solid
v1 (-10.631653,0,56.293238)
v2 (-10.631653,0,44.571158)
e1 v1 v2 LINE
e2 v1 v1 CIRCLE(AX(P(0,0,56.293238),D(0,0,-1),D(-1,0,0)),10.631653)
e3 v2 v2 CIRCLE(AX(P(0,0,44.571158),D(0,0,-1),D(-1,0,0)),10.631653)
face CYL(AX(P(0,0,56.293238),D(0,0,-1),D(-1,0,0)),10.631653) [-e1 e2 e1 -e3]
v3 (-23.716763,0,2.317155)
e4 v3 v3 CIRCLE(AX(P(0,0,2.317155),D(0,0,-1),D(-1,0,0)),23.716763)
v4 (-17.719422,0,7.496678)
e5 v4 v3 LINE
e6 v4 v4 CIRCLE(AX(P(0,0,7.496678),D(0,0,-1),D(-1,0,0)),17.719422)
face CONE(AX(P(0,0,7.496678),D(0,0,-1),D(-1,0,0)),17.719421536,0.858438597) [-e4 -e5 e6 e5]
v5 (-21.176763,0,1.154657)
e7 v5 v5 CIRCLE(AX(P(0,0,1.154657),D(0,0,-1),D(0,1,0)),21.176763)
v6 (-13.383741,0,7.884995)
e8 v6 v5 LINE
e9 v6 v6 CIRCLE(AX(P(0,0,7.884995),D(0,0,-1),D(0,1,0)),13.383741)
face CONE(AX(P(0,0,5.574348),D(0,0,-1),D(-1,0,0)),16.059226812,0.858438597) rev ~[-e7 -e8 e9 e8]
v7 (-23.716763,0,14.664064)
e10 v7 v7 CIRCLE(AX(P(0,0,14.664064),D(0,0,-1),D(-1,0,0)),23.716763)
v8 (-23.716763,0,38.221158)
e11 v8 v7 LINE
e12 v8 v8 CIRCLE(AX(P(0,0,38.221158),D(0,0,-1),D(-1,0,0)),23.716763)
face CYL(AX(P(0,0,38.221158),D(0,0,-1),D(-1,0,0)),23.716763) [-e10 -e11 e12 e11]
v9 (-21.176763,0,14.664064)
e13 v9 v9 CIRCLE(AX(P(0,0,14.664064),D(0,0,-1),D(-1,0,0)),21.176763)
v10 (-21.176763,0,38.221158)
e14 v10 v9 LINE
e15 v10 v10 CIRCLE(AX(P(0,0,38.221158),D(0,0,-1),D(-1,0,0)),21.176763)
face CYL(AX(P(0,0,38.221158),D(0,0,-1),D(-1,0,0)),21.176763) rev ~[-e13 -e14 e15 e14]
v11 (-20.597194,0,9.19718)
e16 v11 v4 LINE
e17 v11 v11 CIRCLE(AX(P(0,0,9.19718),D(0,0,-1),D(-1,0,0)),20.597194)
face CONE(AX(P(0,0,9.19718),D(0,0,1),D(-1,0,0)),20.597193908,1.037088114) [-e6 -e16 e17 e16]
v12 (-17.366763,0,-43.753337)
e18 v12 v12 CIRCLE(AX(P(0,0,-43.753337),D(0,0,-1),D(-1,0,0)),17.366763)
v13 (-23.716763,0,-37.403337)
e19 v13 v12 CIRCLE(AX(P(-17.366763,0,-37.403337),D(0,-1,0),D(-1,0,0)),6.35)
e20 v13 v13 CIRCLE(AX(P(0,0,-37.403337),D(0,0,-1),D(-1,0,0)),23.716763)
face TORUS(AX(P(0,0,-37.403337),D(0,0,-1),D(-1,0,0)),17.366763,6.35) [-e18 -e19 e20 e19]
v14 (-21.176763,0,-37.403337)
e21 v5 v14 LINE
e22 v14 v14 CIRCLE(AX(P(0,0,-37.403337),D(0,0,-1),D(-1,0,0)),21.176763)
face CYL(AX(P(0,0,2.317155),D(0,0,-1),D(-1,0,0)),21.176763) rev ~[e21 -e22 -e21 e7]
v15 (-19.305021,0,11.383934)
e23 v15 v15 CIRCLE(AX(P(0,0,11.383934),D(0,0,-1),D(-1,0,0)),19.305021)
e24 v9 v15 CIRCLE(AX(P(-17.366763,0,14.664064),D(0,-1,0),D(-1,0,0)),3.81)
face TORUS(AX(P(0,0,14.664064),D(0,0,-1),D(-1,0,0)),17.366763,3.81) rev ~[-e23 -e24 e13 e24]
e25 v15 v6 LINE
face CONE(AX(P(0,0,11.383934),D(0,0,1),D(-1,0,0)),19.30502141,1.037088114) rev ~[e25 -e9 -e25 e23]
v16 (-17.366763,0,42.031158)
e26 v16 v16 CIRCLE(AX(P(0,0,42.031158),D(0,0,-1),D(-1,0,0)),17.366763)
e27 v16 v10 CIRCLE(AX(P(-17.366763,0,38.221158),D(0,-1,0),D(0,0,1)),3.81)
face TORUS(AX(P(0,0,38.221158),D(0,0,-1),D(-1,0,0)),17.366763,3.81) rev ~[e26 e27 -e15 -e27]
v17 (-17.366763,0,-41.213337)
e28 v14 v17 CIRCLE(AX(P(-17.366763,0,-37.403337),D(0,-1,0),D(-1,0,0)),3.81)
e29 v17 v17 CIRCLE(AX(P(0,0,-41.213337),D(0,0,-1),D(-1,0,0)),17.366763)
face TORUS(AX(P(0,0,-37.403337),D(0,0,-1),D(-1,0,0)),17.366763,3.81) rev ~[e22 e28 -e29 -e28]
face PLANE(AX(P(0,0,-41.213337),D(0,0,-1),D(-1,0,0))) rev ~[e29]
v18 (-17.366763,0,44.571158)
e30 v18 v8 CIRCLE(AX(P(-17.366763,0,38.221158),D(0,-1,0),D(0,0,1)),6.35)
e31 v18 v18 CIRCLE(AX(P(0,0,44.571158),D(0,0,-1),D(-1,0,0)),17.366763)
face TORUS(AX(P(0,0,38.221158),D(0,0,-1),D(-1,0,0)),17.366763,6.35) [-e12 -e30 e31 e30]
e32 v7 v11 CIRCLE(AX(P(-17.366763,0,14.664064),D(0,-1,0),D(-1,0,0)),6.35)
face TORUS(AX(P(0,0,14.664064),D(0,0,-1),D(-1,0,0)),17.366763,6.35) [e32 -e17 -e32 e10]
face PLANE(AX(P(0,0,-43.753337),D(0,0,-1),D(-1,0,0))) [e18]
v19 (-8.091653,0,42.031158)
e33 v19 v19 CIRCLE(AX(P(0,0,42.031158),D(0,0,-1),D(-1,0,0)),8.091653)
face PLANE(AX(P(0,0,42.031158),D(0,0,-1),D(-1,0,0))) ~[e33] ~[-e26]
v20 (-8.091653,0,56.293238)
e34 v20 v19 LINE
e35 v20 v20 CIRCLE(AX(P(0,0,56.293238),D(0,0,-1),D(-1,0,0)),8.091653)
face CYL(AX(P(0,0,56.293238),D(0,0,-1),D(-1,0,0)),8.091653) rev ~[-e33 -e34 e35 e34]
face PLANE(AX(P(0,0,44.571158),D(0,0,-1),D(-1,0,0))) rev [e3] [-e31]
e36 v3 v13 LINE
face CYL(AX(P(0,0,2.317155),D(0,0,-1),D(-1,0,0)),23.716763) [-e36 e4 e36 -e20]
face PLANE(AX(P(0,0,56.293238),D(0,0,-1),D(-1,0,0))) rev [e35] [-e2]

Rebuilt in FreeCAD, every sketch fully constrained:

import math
import FreeCAD as App
import Part
import Sketcher
Q = App.Units.Quantity


def faces_at(feature, points):
    """Names of the faces that lie closest to the given points."""
    faces = feature.Shape.Faces
    near = lambda p: min(range(len(faces)), key=lambda i: faces[i].distToShape(Part.Vertex(*p))[0])
    return sorted({f"Face{near(p) + 1}" for p in points})

doc = App.newDocument("Part")
body = doc.addObject("PartDesign::Body", "Body")

# Sketch on XZ plane
sketch1 = body.newObject("Sketcher::SketchObject", "Sketch")
sketch1.AttachmentSupport = (doc.getObject("XZ_Plane"), [""])
sketch1.MapMode = "FlatFace"
sketch1.addGeometry(Part.LineSegment(App.Vector(0, -43.8, 0), App.Vector(0, 56.3, 0)), False)
sketch1.addGeometry(Part.LineSegment(App.Vector(0, 56.3, 0), App.Vector(-10.6, 56.3, 0)), False)
sketch1.addGeometry(Part.LineSegment(App.Vector(-10.6, 56.3, 0), App.Vector(-10.6, 44.6, 0)), False)
sketch1.addGeometry(Part.LineSegment(App.Vector(-10.6, 44.6, 0), App.Vector(-17.4, 44.6, 0)), False)
sketch1.addGeometry(Part.ArcOfCircle(Part.Circle(App.Vector(-17.4, 38.2, 0), App.Vector(0, 0, 1), 6.3), math.radians(90), math.radians(180)), False)
sketch1.addGeometry(Part.LineSegment(App.Vector(-23.7, 38.2, 0), App.Vector(-23.7, 14.7, 0)), False)
sketch1.addGeometry(Part.ArcOfCircle(Part.Circle(App.Vector(-17.4, 14.7, 0), App.Vector(0, 0, 1), 6.3), math.radians(180), math.radians(239)), False)
sketch1.addGeometry(Part.LineSegment(App.Vector(-20.6, 9.2, 0), App.Vector(-17.7, 7.5, 0)), False)
sketch1.addGeometry(Part.LineSegment(App.Vector(-17.7, 7.5, 0), App.Vector(-23.7, 2.3, 0)), False)
sketch1.addGeometry(Part.LineSegment(App.Vector(-23.7, 2.3, 0), App.Vector(-23.7, -37.4, 0)), False)
sketch1.addGeometry(Part.ArcOfCircle(Part.Circle(App.Vector(-17.4, -37.4, 0), App.Vector(0, 0, 1), 6.3), math.radians(180), math.radians(270)), False)
sketch1.addGeometry(Part.LineSegment(App.Vector(-17.4, -43.8, 0), App.Vector(0, -43.8, 0)), False)
sketch1.addConstraint(Sketcher.Constraint("Coincident", 0, 2, 1, 1))
sketch1.addConstraint(Sketcher.Constraint("Coincident", 1, 2, 2, 1))
sketch1.addConstraint(Sketcher.Constraint("Coincident", 2, 2, 3, 1))
sketch1.addConstraint(Sketcher.Constraint("Tangent", 3, 2, 4, 1))
sketch1.addConstraint(Sketcher.Constraint("Tangent", 4, 2, 5, 1))
sketch1.addConstraint(Sketcher.Constraint("Tangent", 5, 2, 6, 1))
sketch1.addConstraint(Sketcher.Constraint("Tangent", 6, 2, 7, 1))
sketch1.addConstraint(Sketcher.Constraint("Coincident", 7, 2, 8, 1))
sketch1.addConstraint(Sketcher.Constraint("Coincident", 8, 2, 9, 1))
sketch1.addConstraint(Sketcher.Constraint("Tangent", 9, 2, 10, 1))
sketch1.addConstraint(Sketcher.Constraint("Tangent", 10, 2, 11, 1))
sketch1.addConstraint(Sketcher.Constraint("Coincident", 11, 2, 0, 1))
sketch1.addConstraint(Sketcher.Constraint("Vertical", 0))
sketch1.addConstraint(Sketcher.Constraint("Horizontal", 1))
sketch1.addConstraint(Sketcher.Constraint("Vertical", 2))
sketch1.addConstraint(Sketcher.Constraint("Horizontal", 3))
sketch1.addConstraint(Sketcher.Constraint("Vertical", 5))
sketch1.addConstraint(Sketcher.Constraint("Vertical", 9))
sketch1.addConstraint(Sketcher.Constraint("Horizontal", 11))
sketch1.addConstraint(Sketcher.Constraint("Equal", 4, 6))
sketch1.addConstraint(Sketcher.Constraint("Equal", 6, 10))
sketch1.addConstraint(Sketcher.Constraint("PointOnObject", 0, 2, -2))
sketch1.addConstraint(Sketcher.Constraint("Vertical", 6, 3, 10, 3))
sketch1.addConstraint(Sketcher.Constraint("Radius", 4, Q("0.25 in")))
sketch1.addConstraint(Sketcher.Constraint("DistanceX", 3, 2, 3, 1, Q("6.73511 mm")))
sketch1.addConstraint(Sketcher.Constraint("DistanceY", 2, 2, 2, 1, Q("11.72208 mm")))
sketch1.addConstraint(Sketcher.Constraint("DistanceY", 10, 3, 6, 3, Q("52.067401 mm")))
sketch1.addConstraint(Sketcher.Constraint("DistanceY", 7, 2, 6, 2, Q("1.700502 mm")))
sketch1.addConstraint(Sketcher.Constraint("DistanceX", 1, 2, 1, 1, Q("10.631653 mm")))
sketch1.addConstraint(Sketcher.Constraint("DistanceY", 0, 1, 0, 2, Q("100.046575 mm")))
sketch1.addConstraint(Sketcher.Constraint("DistanceY", 9, 2, 9, 1, Q("39.720492 mm")))
sketch1.addConstraint(Sketcher.Constraint("DistanceY", -1, 1, 6, 2, Q("9.19718 mm")))
sketch1.addConstraint(Sketcher.Constraint("DistanceX", 7, 2, -1, 1, Q("17.719422 mm")))
revolution = body.newObject("PartDesign::Revolution", "Revolution")
revolution.Profile = sketch1
revolution.ReferenceAxis = (sketch1, ["V_Axis"])
revolution.Angle = 360
doc.recompute()

thickness = body.newObject("PartDesign::Thickness", "Thickness")
thickness.Base = (revolution, faces_at(revolution, [(0, 0, 56.293)]))
thickness.Value = Q("0.1 in")
thickness.Reversed = True
thickness.Join = "Intersection"

doc.recompute()
